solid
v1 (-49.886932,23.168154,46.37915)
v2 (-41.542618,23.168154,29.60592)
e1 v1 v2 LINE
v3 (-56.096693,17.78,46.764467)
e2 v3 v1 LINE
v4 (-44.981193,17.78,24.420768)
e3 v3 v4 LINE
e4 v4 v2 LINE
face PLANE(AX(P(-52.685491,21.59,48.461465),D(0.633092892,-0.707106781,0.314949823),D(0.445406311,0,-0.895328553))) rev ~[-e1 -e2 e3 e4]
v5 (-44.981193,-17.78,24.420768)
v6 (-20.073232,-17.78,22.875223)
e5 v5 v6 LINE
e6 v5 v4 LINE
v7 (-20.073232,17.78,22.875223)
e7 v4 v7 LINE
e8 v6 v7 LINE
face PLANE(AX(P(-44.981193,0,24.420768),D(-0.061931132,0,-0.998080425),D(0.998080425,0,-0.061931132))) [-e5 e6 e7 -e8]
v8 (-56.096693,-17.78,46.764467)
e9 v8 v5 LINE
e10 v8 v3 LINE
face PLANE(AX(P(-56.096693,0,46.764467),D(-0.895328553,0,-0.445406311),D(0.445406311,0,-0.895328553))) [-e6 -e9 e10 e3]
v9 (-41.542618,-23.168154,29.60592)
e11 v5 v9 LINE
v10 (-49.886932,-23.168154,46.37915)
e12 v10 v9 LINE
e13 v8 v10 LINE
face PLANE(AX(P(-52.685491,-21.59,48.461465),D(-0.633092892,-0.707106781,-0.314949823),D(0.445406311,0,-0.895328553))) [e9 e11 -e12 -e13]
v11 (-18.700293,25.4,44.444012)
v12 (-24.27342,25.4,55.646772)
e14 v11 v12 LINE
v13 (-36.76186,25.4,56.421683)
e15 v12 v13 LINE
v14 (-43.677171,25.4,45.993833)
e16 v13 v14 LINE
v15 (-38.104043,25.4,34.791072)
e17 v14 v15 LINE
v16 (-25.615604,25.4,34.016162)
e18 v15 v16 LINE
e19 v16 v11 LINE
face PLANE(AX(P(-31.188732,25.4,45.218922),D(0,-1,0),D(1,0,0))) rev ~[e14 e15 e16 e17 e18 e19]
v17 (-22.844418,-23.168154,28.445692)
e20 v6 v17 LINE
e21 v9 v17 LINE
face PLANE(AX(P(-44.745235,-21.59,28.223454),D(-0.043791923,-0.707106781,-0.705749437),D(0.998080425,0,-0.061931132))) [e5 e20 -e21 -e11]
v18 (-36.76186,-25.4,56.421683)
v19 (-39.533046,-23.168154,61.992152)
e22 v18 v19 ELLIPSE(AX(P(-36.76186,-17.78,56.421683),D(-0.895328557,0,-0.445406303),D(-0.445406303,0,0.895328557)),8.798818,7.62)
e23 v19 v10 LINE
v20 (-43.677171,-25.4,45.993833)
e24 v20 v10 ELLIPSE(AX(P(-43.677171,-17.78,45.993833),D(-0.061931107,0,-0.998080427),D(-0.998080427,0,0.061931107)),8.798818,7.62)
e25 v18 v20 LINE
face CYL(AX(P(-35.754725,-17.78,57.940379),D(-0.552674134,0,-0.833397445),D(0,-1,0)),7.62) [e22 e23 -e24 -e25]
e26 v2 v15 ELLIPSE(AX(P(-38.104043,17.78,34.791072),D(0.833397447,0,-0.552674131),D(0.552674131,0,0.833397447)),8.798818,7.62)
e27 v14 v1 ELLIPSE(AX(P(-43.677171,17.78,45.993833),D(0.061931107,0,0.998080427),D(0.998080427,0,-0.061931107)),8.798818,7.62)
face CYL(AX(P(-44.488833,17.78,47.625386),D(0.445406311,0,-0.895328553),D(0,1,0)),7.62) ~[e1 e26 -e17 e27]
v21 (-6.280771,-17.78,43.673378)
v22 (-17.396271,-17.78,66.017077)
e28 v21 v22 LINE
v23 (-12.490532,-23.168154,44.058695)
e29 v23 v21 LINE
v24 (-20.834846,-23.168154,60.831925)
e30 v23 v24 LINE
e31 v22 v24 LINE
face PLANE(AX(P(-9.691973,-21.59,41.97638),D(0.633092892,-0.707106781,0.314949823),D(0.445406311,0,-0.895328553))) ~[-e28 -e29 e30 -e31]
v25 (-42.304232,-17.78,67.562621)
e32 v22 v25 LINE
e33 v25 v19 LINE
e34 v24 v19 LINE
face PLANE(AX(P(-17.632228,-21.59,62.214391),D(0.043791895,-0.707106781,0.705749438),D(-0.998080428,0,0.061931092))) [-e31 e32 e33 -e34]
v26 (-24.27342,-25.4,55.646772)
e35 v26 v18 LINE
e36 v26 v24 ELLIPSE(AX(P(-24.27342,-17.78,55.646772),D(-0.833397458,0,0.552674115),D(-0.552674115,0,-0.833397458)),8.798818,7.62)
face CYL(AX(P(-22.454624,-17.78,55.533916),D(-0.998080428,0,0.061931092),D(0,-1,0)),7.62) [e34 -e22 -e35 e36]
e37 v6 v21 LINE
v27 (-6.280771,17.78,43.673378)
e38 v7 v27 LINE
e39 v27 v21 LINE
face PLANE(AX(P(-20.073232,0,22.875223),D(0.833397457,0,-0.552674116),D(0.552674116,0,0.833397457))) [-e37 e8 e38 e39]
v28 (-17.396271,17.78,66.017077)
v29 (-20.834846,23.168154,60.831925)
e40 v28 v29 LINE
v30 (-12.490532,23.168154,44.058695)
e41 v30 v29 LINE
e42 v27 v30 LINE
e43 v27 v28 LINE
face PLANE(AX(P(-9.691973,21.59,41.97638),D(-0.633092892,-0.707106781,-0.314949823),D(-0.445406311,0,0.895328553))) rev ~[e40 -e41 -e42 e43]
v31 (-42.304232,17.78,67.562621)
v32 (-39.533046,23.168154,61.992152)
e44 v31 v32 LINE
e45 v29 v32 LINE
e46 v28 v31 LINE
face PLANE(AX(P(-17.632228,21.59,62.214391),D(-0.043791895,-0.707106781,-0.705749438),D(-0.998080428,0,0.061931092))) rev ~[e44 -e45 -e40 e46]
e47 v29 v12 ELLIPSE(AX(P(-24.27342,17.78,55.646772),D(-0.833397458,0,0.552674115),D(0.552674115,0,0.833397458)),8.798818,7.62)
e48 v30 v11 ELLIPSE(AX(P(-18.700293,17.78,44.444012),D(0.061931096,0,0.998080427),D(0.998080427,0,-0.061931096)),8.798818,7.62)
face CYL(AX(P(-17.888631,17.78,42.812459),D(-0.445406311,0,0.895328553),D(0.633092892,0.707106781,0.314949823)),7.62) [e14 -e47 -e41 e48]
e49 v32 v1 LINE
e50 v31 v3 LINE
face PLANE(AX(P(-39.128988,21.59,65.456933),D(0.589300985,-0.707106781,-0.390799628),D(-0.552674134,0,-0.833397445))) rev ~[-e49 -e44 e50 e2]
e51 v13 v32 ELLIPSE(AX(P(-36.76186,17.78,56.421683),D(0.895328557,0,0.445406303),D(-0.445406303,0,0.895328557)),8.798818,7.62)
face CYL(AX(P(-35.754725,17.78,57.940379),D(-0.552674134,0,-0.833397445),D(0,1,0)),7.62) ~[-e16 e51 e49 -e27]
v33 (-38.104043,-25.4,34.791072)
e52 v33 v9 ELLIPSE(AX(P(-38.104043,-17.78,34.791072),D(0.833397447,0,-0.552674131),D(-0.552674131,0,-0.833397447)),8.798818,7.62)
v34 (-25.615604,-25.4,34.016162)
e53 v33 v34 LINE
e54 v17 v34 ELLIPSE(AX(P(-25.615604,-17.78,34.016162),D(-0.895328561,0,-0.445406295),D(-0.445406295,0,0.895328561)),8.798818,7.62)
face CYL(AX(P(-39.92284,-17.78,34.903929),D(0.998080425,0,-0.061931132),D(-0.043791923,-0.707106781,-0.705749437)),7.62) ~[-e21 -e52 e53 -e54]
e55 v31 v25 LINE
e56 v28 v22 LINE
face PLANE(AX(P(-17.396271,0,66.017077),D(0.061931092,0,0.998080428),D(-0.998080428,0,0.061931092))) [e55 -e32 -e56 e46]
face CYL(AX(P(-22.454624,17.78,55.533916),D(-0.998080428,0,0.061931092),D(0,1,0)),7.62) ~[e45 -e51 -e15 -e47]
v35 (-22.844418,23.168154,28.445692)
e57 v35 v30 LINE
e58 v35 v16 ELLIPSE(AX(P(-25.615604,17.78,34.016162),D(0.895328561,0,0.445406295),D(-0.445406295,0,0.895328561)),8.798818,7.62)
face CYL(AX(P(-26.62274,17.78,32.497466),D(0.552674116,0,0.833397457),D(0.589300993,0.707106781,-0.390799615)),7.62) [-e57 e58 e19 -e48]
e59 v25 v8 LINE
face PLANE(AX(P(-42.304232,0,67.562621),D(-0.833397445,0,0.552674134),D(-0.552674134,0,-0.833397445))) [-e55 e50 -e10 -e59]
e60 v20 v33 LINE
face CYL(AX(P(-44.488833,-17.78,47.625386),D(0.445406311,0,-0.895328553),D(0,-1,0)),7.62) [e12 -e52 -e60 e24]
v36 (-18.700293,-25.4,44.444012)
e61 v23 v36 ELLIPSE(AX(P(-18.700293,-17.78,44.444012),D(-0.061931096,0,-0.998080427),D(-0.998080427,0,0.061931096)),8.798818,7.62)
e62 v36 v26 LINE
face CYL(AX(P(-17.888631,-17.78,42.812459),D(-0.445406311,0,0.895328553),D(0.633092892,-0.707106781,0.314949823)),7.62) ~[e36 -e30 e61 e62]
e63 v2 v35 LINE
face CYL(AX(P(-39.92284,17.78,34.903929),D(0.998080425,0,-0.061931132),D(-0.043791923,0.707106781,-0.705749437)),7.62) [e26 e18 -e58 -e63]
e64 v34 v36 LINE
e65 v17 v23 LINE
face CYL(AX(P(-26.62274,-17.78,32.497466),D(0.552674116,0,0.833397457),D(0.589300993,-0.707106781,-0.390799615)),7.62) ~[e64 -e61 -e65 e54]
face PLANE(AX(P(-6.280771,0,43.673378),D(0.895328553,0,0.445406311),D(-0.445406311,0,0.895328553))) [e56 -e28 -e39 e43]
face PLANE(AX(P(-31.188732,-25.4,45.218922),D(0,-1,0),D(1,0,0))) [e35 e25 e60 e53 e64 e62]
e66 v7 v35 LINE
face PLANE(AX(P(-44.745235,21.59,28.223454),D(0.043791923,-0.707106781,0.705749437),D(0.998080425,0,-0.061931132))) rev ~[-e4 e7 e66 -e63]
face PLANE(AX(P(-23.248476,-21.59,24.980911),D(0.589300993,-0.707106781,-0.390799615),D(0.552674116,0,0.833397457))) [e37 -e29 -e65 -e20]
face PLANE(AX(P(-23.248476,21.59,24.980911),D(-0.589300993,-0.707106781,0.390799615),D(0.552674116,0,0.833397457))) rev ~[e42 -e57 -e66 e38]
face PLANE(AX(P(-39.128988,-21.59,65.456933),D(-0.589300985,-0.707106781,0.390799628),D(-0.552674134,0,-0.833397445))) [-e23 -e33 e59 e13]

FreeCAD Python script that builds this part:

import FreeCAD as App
import Part
import Sketcher
Q = App.Units.Quantity


def edges_at(feature, points):
    """Names of the edges that pass closest to the given points."""
    edges = feature.Shape.Edges
    near = lambda p: min(range(len(edges)), key=lambda i: edges[i].distToShape(Part.Vertex(*p))[0])
    return sorted({f"Edge{near(p) + 1}" for p in points})


def add_polygon(sketch, points):
    """Adds a closed chain of lines whose ends are joined by coincident constraints."""
    first, n = sketch.GeometryCount, len(points)
    for a, b in zip(points, points[1:] + points[:1]):
        sketch.addGeometry(Part.LineSegment(App.Vector(*a, 0), App.Vector(*b, 0)), False)
    for i in range(n):
        sketch.addConstraint(Sketcher.Constraint("Coincident", first + i, 2, first + (i + 1) % n, 1))

doc = App.newDocument("Part")
body = doc.addObject("PartDesign::Body", "Body")

# Sketch on XZ plane
sketch1 = body.newObject("Sketcher::SketchObject", "Sketch")
sketch1.AttachmentSupport = (doc.getObject("XZ_Plane"), [""])
sketch1.MapMode = "FlatFace"
add_polygon(sketch1, [(-20, 23), (-6, 44), (-17, 66), (-42, 68), (-56, 47), (-45, 24)])  # lines 0-5
sketch1.addConstraint(Sketcher.Constraint("Parallel", 0, 3))
sketch1.addConstraint(Sketcher.Constraint("Parallel", 1, 4))
sketch1.addConstraint(Sketcher.Constraint("Parallel", 2, 5))
sketch1.addConstraint(Sketcher.Constraint("Equal", 0, 1))
sketch1.addConstraint(Sketcher.Constraint("Equal", 1, 2))
sketch1.addConstraint(Sketcher.Constraint("Equal", 2, 3))
sketch1.addConstraint(Sketcher.Constraint("DistanceX", 1, 2, 0, 2, 11.1155))
sketch1.addConstraint(Sketcher.Constraint("DistanceY", 0, 2, 1, 2, 22.343699))
sketch1.addConstraint(Sketcher.Constraint("DistanceX", 2, 2, 5, 2, 22.231))
sketch1.addConstraint(Sketcher.Constraint("DistanceX", 0, 2, -1, 1, 6.280771))
sketch1.addConstraint(Sketcher.Constraint("DistanceY", -1, 1, 2, 2, 67.562621))
sketch1.addConstraint(Sketcher.Constraint("DistanceX", 2, 2, 1, 2, 24.907961))
pad1 = body.newObject("PartDesign::Pad", "Pad")
pad1.Profile = sketch1
pad1.Type = "TwoLengths"
pad1.Length = Q("1 in")
pad1.Length2 = Q("1 in")
doc.recompute()

chamfer = body.newObject("PartDesign::Chamfer", "Chamfer")
chamfer.Base = (pad1, edges_at(pad1, [
    (-29.85, -25.4, 66.79),
    (-11.839, -25.4, 54.845),
    (-13.177, -25.4, 33.274),
    (-49.2, -25.4, 57.164),
    (-50.539, -25.4, 35.593),
    (-32.527, -25.4, 23.648),
    (-13.177, 25.4, 33.274),
    (-11.839, 25.4, 54.845),
    (-29.85, 25.4, 66.79),
    (-49.2, 25.4, 57.164),
    (-50.539, 25.4, 35.593),
    (-32.527, 25.4, 23.648),
]))
chamfer.Size = Q("0.3 in")
doc.recompute()

fillet = body.newObject("PartDesign::Fillet", "Fillet")
fillet.Base = (chamfer, edges_at(chamfer, [
    (-30.322, -25.4, 59.184),
    (-18.661, -25.4, 51.451),
    (-42.85, -25.4, 52.952),
    (-19.527, -25.4, 37.486),
    (-43.717, -25.4, 38.987),
    (-32.055, -25.4, 31.253),
]))
fillet.Radius = Q("0.3 in")
doc.recompute()

fillet2 = body.newObject("PartDesign::Fillet", "Fillet001")
fillet2.Base = (fillet, edges_at(fillet, [
    (-19.527, 25.4, 37.486),
    (-32.055, 25.4, 31.253),
    (-18.661, 25.4, 51.451),
    (-43.717, 25.4, 38.987),
    (-30.322, 25.4, 59.184),
    (-42.85, 25.4, 52.952),
]))
fillet2.Radius = Q("0.3 in")

doc.recompute()
